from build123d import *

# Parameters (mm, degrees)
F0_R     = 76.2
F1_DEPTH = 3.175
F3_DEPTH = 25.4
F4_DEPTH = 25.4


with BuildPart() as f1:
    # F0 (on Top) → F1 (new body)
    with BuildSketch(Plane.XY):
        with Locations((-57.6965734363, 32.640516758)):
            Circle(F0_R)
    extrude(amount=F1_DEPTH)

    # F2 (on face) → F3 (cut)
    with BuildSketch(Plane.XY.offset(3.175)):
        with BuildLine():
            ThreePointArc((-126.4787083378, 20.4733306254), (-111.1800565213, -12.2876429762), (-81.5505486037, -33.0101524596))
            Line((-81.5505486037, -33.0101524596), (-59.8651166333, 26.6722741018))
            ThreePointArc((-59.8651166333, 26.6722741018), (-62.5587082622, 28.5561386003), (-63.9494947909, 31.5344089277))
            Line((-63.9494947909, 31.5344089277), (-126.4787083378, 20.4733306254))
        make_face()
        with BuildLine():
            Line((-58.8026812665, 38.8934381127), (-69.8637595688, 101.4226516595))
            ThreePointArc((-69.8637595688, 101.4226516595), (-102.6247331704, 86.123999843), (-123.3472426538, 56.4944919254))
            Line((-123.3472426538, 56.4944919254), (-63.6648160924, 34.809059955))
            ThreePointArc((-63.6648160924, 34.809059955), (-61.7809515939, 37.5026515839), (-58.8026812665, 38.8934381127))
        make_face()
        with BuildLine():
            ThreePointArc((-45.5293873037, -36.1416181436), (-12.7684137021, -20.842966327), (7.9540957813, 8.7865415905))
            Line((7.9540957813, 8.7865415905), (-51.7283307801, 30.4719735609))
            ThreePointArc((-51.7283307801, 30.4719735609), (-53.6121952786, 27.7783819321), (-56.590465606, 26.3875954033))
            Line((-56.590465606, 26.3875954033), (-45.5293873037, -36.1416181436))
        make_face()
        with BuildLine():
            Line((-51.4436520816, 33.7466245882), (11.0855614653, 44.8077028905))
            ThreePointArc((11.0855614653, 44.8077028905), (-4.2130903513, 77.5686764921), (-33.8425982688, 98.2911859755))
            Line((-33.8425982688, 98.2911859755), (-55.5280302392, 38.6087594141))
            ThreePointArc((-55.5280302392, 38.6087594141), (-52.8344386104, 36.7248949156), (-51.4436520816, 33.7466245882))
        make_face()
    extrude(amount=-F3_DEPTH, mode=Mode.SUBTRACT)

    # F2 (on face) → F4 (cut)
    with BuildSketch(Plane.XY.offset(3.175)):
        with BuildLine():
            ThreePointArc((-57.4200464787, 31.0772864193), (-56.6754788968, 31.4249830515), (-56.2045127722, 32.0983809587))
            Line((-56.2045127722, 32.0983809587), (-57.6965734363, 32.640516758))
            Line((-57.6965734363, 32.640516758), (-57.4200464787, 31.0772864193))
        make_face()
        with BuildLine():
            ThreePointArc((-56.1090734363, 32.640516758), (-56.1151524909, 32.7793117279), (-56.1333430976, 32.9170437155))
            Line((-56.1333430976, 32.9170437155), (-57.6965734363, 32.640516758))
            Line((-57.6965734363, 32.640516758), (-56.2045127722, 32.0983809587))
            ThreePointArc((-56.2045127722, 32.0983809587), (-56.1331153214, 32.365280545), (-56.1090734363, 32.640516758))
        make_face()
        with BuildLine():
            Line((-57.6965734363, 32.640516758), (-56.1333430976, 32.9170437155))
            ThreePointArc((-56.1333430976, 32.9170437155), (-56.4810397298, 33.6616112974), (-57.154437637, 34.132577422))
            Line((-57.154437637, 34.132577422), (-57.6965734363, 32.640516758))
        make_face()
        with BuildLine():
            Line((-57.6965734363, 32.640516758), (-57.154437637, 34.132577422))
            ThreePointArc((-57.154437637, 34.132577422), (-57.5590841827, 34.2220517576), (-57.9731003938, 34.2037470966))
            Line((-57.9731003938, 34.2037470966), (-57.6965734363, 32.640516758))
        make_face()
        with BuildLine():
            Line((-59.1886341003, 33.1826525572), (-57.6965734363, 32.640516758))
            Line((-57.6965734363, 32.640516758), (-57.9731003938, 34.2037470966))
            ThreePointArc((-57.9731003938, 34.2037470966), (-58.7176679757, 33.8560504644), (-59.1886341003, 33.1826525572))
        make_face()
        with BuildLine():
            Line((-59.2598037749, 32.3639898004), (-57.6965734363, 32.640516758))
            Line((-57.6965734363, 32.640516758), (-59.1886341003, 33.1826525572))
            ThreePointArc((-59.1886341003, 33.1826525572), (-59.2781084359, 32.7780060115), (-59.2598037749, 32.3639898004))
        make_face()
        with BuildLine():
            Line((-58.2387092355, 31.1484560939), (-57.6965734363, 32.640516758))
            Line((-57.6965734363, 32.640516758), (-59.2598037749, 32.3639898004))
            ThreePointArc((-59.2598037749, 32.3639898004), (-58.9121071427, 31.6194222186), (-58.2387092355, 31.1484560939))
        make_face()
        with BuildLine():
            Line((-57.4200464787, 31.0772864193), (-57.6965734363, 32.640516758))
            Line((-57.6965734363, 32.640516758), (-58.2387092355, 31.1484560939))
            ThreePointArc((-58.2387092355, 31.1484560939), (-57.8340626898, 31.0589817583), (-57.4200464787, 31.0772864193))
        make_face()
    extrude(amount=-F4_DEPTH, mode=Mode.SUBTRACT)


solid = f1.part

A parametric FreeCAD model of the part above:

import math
import FreeCAD as App
import Part
import Sketcher
Q = App.Units.Quantity

doc = App.newDocument("Part")
body = doc.addObject("PartDesign::Body", "Body")

# Sketch on XY plane
sketch1 = body.newObject("Sketcher::SketchObject", "Sketch")
sketch1.AttachmentSupport = (doc.getObject("XY_Plane"), [""])
sketch1.MapMode = "FlatFace"
sketch1.addGeometry(Part.Circle(App.Vector(-58, 33, 0), App.Vector(0, 0, 1), 76), False)
sketch1.addConstraint([
    Sketcher.Constraint("Diameter", 0, Q("6 in")),
    Sketcher.Constraint("DistanceX", 0, 3, -1, 1, 57.696573),
    Sketcher.Constraint("DistanceY", -1, 1, 0, 3, 32.640517),
])
pad1 = body.newObject("PartDesign::Pad", "Pad")
pad1.Profile = sketch1
pad1.Length = Q("0.125 in")

# Sketch on XY plane
sketch2 = body.newObject("Sketcher::SketchObject", "Sketch001")
sketch2.AttachmentSupport = (doc.getObject("XY_Plane"), [""])
sketch2.MapMode = "FlatFace"
sketch2.AttachmentOffset = App.Placement(App.Vector(0, 0, 0.125 * 25.4), App.Rotation())
sketch2.addGeometry([
    Part.ArcOfCircle(Part.Circle(App.Vector(-58, 33, 0), App.Vector(0, 0, 1), 70), math.radians(-170), math.radians(-110)),  # 0
    Part.LineSegment(App.Vector(-82, -33, 0), App.Vector(-60, 27, 0)),  # 1
    Part.ArcOfCircle(Part.Circle(App.Vector(-58, 33, 0), App.Vector(0, 0, 1), 6), math.radians(-170), math.radians(-110)),  # 2
    Part.LineSegment(App.Vector(-64, 32, 0), App.Vector(-126, 20, 0)),  # 3
    Part.LineSegment(App.Vector(-59, 39, 0), App.Vector(-70, 101, 0)),  # 4
    Part.ArcOfCircle(Part.Circle(App.Vector(-58, 33, 0), App.Vector(0, 0, 1), 70), math.radians(100), math.radians(160)),  # 5
    Part.LineSegment(App.Vector(-123, 56, 0), App.Vector(-64, 35, 0)),  # 6
    Part.ArcOfCircle(Part.Circle(App.Vector(-58, 33, 0), App.Vector(0, 0, 1), 6), math.radians(100), math.radians(160)),  # 7
    Part.ArcOfCircle(Part.Circle(App.Vector(-58, 33, 0), App.Vector(0, 0, 1), 70), math.radians(-80), math.radians(-20)),  # 8
    Part.LineSegment(App.Vector(8, 9, 0), App.Vector(-52, 30, 0)),  # 9
    Part.ArcOfCircle(Part.Circle(App.Vector(-58, 33, 0), App.Vector(0, 0, 1), 6), math.radians(-80), math.radians(-20)),  # 10
    Part.LineSegment(App.Vector(-57, 26, 0), App.Vector(-46, -36, 0)),  # 11
    Part.LineSegment(App.Vector(-51, 34, 0), App.Vector(11, 45, 0)),  # 12
    Part.ArcOfCircle(Part.Circle(App.Vector(-58, 33, 0), App.Vector(0, 0, 1), 70), math.radians(10), math.radians(70)),  # 13
    Part.LineSegment(App.Vector(-34, 98, 0), App.Vector(-56, 39, 0)),  # 14
    Part.ArcOfCircle(Part.Circle(App.Vector(-58, 33, 0), App.Vector(0, 0, 1), 6), math.radians(10), math.radians(70)),  # 15
], False)
sketch2.addConstraint([
    Sketcher.Constraint("Coincident", 0, 2, 1, 1),
    Sketcher.Constraint("Coincident", 1, 2, 2, 2),
    Sketcher.Constraint("Coincident", 2, 1, 3, 1),
    Sketcher.Constraint("Coincident", 3, 2, 0, 1),
    Sketcher.Constraint("Coincident", 4, 2, 5, 1),
    Sketcher.Constraint("Coincident", 5, 2, 6, 1),
    Sketcher.Constraint("Coincident", 6, 2, 7, 2),
    Sketcher.Constraint("Coincident", 7, 1, 4, 1),
    Sketcher.Constraint("Coincident", 8, 2, 9, 1),
    Sketcher.Constraint("Coincident", 9, 2, 10, 2),
    Sketcher.Constraint("Coincident", 10, 1, 11, 1),
    Sketcher.Constraint("Coincident", 11, 2, 8, 1),
    Sketcher.Constraint("Coincident", 12, 2, 13, 1),
    Sketcher.Constraint("Coincident", 13, 2, 14, 1),
    Sketcher.Constraint("Coincident", 14, 2, 15, 2),
    Sketcher.Constraint("Coincident", 15, 1, 12, 1),
    Sketcher.Constraint("Coincident", 2, 3, 0, 3),
    Sketcher.Constraint("Coincident", 5, 3, 0, 3),
    Sketcher.Constraint("Coincident", 7, 3, 0, 3),
    Sketcher.Constraint("Coincident", 8, 3, 0, 3),
    Sketcher.Constraint("Coincident", 10, 3, 0, 3),
    Sketcher.Constraint("Coincident", 13, 3, 0, 3),
    Sketcher.Constraint("Coincident", 15, 3, 0, 3),
    Sketcher.Constraint("Equal", 0, 5),
    Sketcher.Constraint("Equal", 2, 7),
    Sketcher.Constraint("Equal", 5, 8),
    Sketcher.Constraint("Equal", 7, 10),
    Sketcher.Constraint("Equal", 8, 13),
    Sketcher.Constraint("Equal", 10, 15),
    Sketcher.Constraint("Perpendicular", 3, 4),
    Sketcher.Constraint("Perpendicular", 1, 6),
    Sketcher.Constraint("Parallel", 6, 9),
    Sketcher.Constraint("Parallel", 4, 11),
    Sketcher.Constraint("Perpendicular", 11, 12),
    Sketcher.Constraint("Perpendicular", 9, 14),
    Sketcher.Constraint("Radius", 0, Q("2.75 in")),
    Sketcher.Constraint("Radius", 2, Q("0.25 in")),
    Sketcher.Constraint("DistanceX", 13, 2, -1, 1, 33.842598),
    Sketcher.Constraint("DistanceX", 0, 2, -1, 1, 81.550549),
    Sketcher.Constraint("DistanceY", -1, 1, 2, 1, 31.534409),
    Sketcher.Constraint("DistanceX", 3, 2, -1, 1, 126.478708),
    Sketcher.Constraint("DistanceY", -1, 1, 3, 2, 20.473331),
    Sketcher.Constraint("DistanceX", 4, 2, -1, 1, 69.86376),
    Sketcher.Constraint("DistanceY", -1, 1, 4, 2, 101.422652),
    Sketcher.Constraint("DistanceY", -1, 1, 5, 2, 56.494492),
    Sketcher.Constraint("DistanceY", -1, 1, 6, 2, 34.80906),
    Sketcher.Constraint("DistanceY", -1, 1, 8, 2, 8.786542),
    Sketcher.Constraint("DistanceY", 11, 2, -1, 1, 36.141618),
    Sketcher.Constraint("DistanceX", -1, 1, 12, 2, 11.085561),
])
pocket1 = body.newObject("PartDesign::Pocket", "Pocket")
pocket1.Profile = sketch2
pocket1.Length = Q("1 in")

# Sketch on XY plane
sketch3 = body.newObject("Sketcher::SketchObject", "Sketch002")
sketch3.AttachmentSupport = (doc.getObject("XY_Plane"), [""])
sketch3.MapMode = "FlatFace"
sketch3.AttachmentOffset = App.Placement(App.Vector(0, 0, 0.125 * 25.4), App.Rotation())
sketch3.addGeometry([
    Part.ArcOfCircle(Part.Circle(App.Vector(-57.7, 32.64, 0), App.Vector(0, 0, 1), 1.59), math.radians(-80), math.radians(-20)),  # 0
    Part.ArcOfCircle(Part.Circle(App.Vector(-57.7, 32.64, 0), App.Vector(0, 0, 1), 1.59), math.radians(-19.97), math.radians(0)),  # 1
    Part.ArcOfCircle(Part.Circle(App.Vector(-57.7, 32.64, 0), App.Vector(0, 0, 1), 1.59), math.radians(0), math.radians(10.03)),  # 2
    Part.ArcOfCircle(Part.Circle(App.Vector(-57.7, 32.64, 0), App.Vector(0, 0, 1), 1.59), math.radians(10), math.radians(70)),  # 3
    Part.ArcOfCircle(Part.Circle(App.Vector(-57.7, 32.64, 0), App.Vector(0, 0, 1), 1.59), math.radians(70), math.radians(100)),  # 4
    Part.ArcOfCircle(Part.Circle(App.Vector(-57.7, 32.64, 0), App.Vector(0, 0, 1), 1.59), math.radians(100), math.radians(160)),  # 5
    Part.ArcOfCircle(Part.Circle(App.Vector(-57.7, 32.64, 0), App.Vector(0, 0, 1), 1.59), math.radians(160), math.radians(190)),  # 6
    Part.ArcOfCircle(Part.Circle(App.Vector(-57.7, 32.64, 0), App.Vector(0, 0, 1), 1.59), math.radians(-170), math.radians(-110)),  # 7
    Part.ArcOfCircle(Part.Circle(App.Vector(-57.7, 32.64, 0), App.Vector(0, 0, 1), 1.59), math.radians(-110), math.radians(-80)),  # 8
], False)
sketch3.addConstraint([
    Sketcher.Constraint("Tangent", 0, 2, 1, 1),
    Sketcher.Constraint("Tangent", 1, 2, 2, 1),
    Sketcher.Constraint("Tangent", 2, 2, 3, 1),
    Sketcher.Constraint("Tangent", 3, 2, 4, 1),
    Sketcher.Constraint("Tangent", 4, 2, 5, 1),
    Sketcher.Constraint("Tangent", 5, 2, 6, 1),
    Sketcher.Constraint("Tangent", 6, 2, 7, 1),
    Sketcher.Constraint("Tangent", 7, 2, 8, 1),
    Sketcher.Constraint("Tangent", 8, 2, 0, 1),
    Sketcher.Constraint("Coincident", 2, 3, 0, 3),
    Sketcher.Constraint("Coincident", 4, 3, 0, 3),
    Sketcher.Constraint("Coincident", 6, 3, 0, 3),
    Sketcher.Constraint("Horizontal", 8, 3, 1, 2),
    Sketcher.Constraint("Radius", 0, Q("0.0625 in")),
    Sketcher.Constraint("DistanceX", 4, 2, -1, 1, 57.9731),
    Sketcher.Constraint("DistanceY", -1, 1, 0, 2, 32.098381),
    Sketcher.Constraint("DistanceY", -1, 1, 6, 2, 32.36399),
    Sketcher.Constraint("DistanceX", 7, 2, -1, 1, 58.238709),
    Sketcher.Constraint("DistanceX", 2, 3, 0, 2, 1.492061),
    Sketcher.Constraint("DistanceX", 2, 2, 1, 2, 0.02427),
    Sketcher.Constraint("DistanceY", 2, 3, 3, 2, 1.492061),
    Sketcher.Constraint("DistanceY", 3, 2, 4, 2, 0.07117),
    Sketcher.Constraint("DistanceX", 5, 2, 1, 3, 1.492061),
    Sketcher.Constraint("DistanceY", 8, 2, 7, 2, 0.07117),
])
pocket2 = body.newObject("PartDesign::Pocket", "Pocket001")
pocket2.Profile = sketch3
pocket2.Length = Q("1 in")

doc.recompute()
